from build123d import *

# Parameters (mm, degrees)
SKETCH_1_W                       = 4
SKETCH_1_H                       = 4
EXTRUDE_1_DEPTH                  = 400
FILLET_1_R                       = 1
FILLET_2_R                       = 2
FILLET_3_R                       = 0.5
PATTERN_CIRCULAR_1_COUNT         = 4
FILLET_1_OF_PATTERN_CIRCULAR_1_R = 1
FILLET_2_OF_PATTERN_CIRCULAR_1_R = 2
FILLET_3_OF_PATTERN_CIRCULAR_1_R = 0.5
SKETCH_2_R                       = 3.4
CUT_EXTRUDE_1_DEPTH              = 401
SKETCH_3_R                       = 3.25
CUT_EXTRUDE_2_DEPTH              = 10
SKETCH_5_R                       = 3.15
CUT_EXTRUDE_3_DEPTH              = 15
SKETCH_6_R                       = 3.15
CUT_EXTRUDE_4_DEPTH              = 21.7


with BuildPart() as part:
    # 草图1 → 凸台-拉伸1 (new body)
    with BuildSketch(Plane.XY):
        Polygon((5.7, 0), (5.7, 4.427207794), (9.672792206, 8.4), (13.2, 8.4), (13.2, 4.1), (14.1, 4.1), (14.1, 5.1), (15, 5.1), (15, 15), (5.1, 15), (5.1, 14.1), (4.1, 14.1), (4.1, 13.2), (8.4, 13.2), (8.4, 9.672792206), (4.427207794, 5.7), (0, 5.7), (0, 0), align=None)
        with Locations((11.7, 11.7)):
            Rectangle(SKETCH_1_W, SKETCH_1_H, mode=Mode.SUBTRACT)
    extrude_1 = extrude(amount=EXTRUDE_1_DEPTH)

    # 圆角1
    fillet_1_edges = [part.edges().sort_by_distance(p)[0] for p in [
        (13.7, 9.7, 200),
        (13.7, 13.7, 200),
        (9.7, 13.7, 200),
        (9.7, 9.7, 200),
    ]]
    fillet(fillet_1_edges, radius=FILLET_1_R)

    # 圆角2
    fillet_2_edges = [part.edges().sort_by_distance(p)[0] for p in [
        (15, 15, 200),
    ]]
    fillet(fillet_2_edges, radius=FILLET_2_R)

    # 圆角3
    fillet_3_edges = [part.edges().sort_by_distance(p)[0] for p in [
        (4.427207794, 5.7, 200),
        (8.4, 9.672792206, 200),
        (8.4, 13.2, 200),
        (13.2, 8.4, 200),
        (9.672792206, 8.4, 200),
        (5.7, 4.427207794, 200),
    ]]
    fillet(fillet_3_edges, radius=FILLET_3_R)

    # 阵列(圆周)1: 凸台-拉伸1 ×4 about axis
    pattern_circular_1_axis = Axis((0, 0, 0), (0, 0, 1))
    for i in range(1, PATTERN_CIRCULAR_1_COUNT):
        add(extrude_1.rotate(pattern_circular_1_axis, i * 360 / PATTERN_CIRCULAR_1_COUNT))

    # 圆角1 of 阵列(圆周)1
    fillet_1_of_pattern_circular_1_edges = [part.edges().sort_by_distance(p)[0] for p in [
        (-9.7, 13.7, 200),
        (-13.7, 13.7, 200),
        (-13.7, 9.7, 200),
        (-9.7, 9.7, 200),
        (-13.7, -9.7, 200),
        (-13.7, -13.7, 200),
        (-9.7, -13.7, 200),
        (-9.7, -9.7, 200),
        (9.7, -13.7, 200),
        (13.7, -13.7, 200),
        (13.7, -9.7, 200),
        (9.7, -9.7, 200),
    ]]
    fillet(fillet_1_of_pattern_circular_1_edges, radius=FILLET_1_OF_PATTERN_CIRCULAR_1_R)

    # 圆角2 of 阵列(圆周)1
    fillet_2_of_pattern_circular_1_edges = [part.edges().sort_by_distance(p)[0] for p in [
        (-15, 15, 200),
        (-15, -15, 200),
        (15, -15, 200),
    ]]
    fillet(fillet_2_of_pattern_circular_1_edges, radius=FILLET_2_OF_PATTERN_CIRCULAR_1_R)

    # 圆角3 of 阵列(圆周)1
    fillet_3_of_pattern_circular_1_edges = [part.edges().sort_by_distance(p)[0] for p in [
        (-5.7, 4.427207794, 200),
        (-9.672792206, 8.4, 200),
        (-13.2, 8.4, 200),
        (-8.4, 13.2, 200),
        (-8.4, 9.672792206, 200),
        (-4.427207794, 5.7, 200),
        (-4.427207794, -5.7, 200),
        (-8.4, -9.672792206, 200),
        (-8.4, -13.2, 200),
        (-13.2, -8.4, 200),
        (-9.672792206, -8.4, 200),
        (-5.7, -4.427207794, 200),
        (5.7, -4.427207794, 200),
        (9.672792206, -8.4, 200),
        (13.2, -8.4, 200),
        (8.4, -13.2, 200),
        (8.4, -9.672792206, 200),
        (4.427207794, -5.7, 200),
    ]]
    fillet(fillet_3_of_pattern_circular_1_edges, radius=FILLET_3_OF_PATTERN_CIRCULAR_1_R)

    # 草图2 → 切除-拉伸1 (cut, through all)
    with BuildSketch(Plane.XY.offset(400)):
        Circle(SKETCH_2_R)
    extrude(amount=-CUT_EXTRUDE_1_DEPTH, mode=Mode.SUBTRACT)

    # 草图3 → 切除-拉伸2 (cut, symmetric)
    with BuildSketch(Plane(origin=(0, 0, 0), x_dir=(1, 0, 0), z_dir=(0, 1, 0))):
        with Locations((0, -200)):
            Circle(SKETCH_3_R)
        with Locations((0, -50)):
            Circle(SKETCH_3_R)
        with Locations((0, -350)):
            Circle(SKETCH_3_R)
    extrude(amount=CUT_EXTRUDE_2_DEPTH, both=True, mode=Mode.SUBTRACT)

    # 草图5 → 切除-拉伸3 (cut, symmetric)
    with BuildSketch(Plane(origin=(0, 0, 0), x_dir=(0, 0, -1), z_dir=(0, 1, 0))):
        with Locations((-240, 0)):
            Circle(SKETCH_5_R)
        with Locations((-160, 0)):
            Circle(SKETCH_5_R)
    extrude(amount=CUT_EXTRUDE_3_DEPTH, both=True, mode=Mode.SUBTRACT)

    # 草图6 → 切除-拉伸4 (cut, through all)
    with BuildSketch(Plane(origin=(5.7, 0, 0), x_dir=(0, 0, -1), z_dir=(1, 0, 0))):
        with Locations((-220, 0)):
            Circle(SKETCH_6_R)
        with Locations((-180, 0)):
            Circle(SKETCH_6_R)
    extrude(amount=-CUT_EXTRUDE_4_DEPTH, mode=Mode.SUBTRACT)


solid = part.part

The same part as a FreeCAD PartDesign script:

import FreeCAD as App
import Part
import Sketcher
from FreeCAD import Vector
Q = App.Units.Quantity


def edges_at(feature, points):
    """Names of the edges that pass closest to the given points."""
    edges = feature.Shape.Edges
    near = lambda p: min(range(len(edges)), key=lambda i: edges[i].distToShape(Part.Vertex(*p))[0])
    return sorted({f"Edge{near(p) + 1}" for p in points})


def add_polygon(sketch, points):
    """Adds a closed chain of lines whose ends are joined by coincident constraints."""
    first, n = sketch.GeometryCount, len(points)
    for a, b in zip(points, points[1:] + points[:1]):
        sketch.addGeometry(Part.LineSegment(App.Vector(*a, 0), App.Vector(*b, 0)), False)
    for i in range(n):
        sketch.addConstraint(Sketcher.Constraint("Coincident", first + i, 2, first + (i + 1) % n, 1))

doc = App.newDocument("Part")
body = doc.addObject("PartDesign::Body", "Body")

sketch1 = doc.addObject("Sketcher::SketchObject", "Sketch")
body.addObject(sketch1)
sketch1.AttachmentSupport = (doc.XY_Plane, [""])
sketch1.MapMode = "FlatFace"
add_polygon(sketch1, [(5.7, 0), (5.7, 4.427208), (9.672792, 8.4), (13.2, 8.4), (13.2, 4.1), (14.1, 4.1), (14.1, 5.1), (15, 5.1), (15, 15), (5.1, 15), (5.1, 14.1), (4.1, 14.1), (4.1, 13.2), (8.4, 13.2), (8.4, 9.672792), (4.427208, 5.7), (0, 5.7), (0, 0)])
add_polygon(sketch1, [(13.7, 9.7), (9.7, 9.7), (9.7, 13.7), (13.7, 13.7)])
sketch1.addConstraint([
    Sketcher.Constraint("Vertical", 0),
    Sketcher.Constraint("Horizontal", 2),
    Sketcher.Constraint("Vertical", 3),
    Sketcher.Constraint("Horizontal", 4),
    Sketcher.Constraint("Vertical", 5),
    Sketcher.Constraint("Horizontal", 6),
    Sketcher.Constraint("Vertical", 7),
    Sketcher.Constraint("Horizontal", 8),
    Sketcher.Constraint("Vertical", 9),
    Sketcher.Constraint("Horizontal", 10),
    Sketcher.Constraint("Vertical", 11),
    Sketcher.Constraint("Horizontal", 12),
    Sketcher.Constraint("Vertical", 13),
    Sketcher.Constraint("Horizontal", 15),
    Sketcher.Constraint("Vertical", 16),
    Sketcher.Constraint("Horizontal", 17),
    Sketcher.Constraint("Horizontal", 18),
    Sketcher.Constraint("Vertical", 19),
    Sketcher.Constraint("Horizontal", 20),
    Sketcher.Constraint("Vertical", 21),
    Sketcher.Constraint("Coincident", 16, 2, -1, 1),
    Sketcher.Constraint("Parallel", 1, 14),
    Sketcher.Constraint("Equal", 4, 6),
    Sketcher.Constraint("Equal", 15, 0),
    Sketcher.Constraint("Equal", 12, 3),
    Sketcher.Constraint("Equal", 10, 5),
    Sketcher.Constraint("Equal", 8, 7),
    Sketcher.Constraint("Equal", 6, 9),
    Sketcher.Constraint("Equal", 9, 11),
    Sketcher.Constraint("Equal", 2, 13),
    Sketcher.Constraint("Equal", 17, 16),
    Sketcher.Constraint("Equal", 20, 19),
    Sketcher.Constraint("DistanceX", 10, 2, 10, 1, Q("1 mm")),
    Sketcher.Constraint("DistanceX", 18, 2, 18, 1, Q("4 mm")),
    Sketcher.Constraint("Angle", 1, Q("45 deg")),
    Sketcher.Constraint("DistanceX", 4, 1, 4, 2, Q("0.9 mm")),
    Sketcher.Constraint("DistanceX", 8, 2, 8, 1, Q("9.9 mm")),
    Sketcher.Constraint("DistanceX", 12, 1, 12, 2, Q("4.3 mm")),
    Sketcher.Constraint("DistanceX", 17, 1, 17, 2, Q("5.7 mm")),
    Sketcher.Constraint("DistanceX", -1, 1, 6, 2, Q("15 mm")),
    Sketcher.Constraint("DistanceX", -1, 1, 18, 2, Q("9.7 mm")),
    Sketcher.Constraint("DistanceY", -1, 1, 18, 2, Q("9.7 mm")),
    Sketcher.Constraint("DistanceX", 2, 1, 2, 2, Q("3.527208 mm")),
])
pad1 = doc.addObject("PartDesign::Pad", "Pad")
body.addObject(pad1)
pad1.Profile = sketch1
pad1.Length = 400
doc.recompute()

fillet = doc.addObject("PartDesign::Fillet", "Fillet")
body.addObject(fillet)
fillet.Base = (pad1, edges_at(pad1, [
    (13.7, 9.7, 200),
    (13.7, 13.7, 200),
    (9.7, 13.7, 200),
    (9.7, 9.7, 200),
]))
fillet.Radius = 1
doc.recompute()

fillet2 = doc.addObject("PartDesign::Fillet", "Fillet001")
body.addObject(fillet2)
fillet2.Base = (fillet, edges_at(fillet, [(15, 15, 200)]))
fillet2.Radius = 2
doc.recompute()

fillet3 = doc.addObject("PartDesign::Fillet", "Fillet002")
body.addObject(fillet3)
fillet3.Base = (fillet2, edges_at(fillet2, [
    (4.427, 5.7, 200),
    (8.4, 9.673, 200),
    (8.4, 13.2, 200),
    (13.2, 8.4, 200),
    (9.673, 8.4, 200),
    (5.7, 4.427, 200),
]))
fillet3.Radius = 0.5
doc.recompute()

polarpattern = doc.addObject("PartDesign::PolarPattern", "PolarPattern")
body.addObject(polarpattern)
polarpattern.Originals = [pad1]
polarpattern.Axis = (doc.Z_Axis, [""])
polarpattern.Angle = 360
polarpattern.Occurrences = 4
body.Tip = polarpattern
doc.recompute()

fillet4 = doc.addObject("PartDesign::Fillet", "Fillet003")
body.addObject(fillet4)
fillet4.Base = (polarpattern, edges_at(polarpattern, [
    (-9.7, 13.7, 200),
    (-13.7, 13.7, 200),
    (-13.7, 9.7, 200),
    (-9.7, 9.7, 200),
    (-13.7, -9.7, 200),
    (-13.7, -13.7, 200),
    (-9.7, -13.7, 200),
    (-9.7, -9.7, 200),
    (9.7, -13.7, 200),
    (13.7, -13.7, 200),
    (13.7, -9.7, 200),
    (9.7, -9.7, 200),
]))
fillet4.Radius = 1
doc.recompute()

fillet5 = doc.addObject("PartDesign::Fillet", "Fillet004")
body.addObject(fillet5)
fillet5.Base = (fillet4, edges_at(fillet4, [(-15, 15, 200), (-15, -15, 200), (15, -15, 200)]))
fillet5.Radius = 2
doc.recompute()

fillet6 = doc.addObject("PartDesign::Fillet", "Fillet005")
body.addObject(fillet6)
fillet6.Base = (fillet5, edges_at(fillet5, [
    (-5.7, 4.427, 200),
    (-9.673, 8.4, 200),
    (-13.2, 8.4, 200),
    (-8.4, 13.2, 200),
    (-8.4, 9.673, 200),
    (-4.427, 5.7, 200),
    (-4.427, -5.7, 200),
    (-8.4, -9.673, 200),
    (-8.4, -13.2, 200),
    (-13.2, -8.4, 200),
    (-9.673, -8.4, 200),
    (-5.7, -4.427, 200),
    (5.7, -4.427, 200),
    (9.673, -8.4, 200),
    (13.2, -8.4, 200),
    (8.4, -13.2, 200),
    (8.4, -9.673, 200),
    (4.427, -5.7, 200),
]))
fillet6.Radius = 0.5

sketch2 = doc.addObject("Sketcher::SketchObject", "Sketch001")
body.addObject(sketch2)
sketch2.AttachmentSupport = (doc.XY_Plane, [""])
sketch2.MapMode = "FlatFace"
sketch2.AttachmentOffset = App.Placement(Vector(0, 0, 400), App.Rotation())
sketch2.addGeometry(Part.Circle(Vector(0, 0, 0), Vector(0, 0, 1), 3.4), False)
sketch2.addConstraint([
    Sketcher.Constraint("Coincident", 0, 3, -1, 1),
    Sketcher.Constraint("Diameter", 0, Q("6.8 mm")),
])
pocket1 = doc.addObject("PartDesign::Pocket", "Pocket")
body.addObject(pocket1)
pocket1.Profile = sketch2
pocket1.Type = "ThroughAll"

sketch3 = doc.addObject("Sketcher::SketchObject", "Sketch002")
body.addObject(sketch3)
sketch3.AttachmentSupport = (doc.XZ_Plane, [""])
sketch3.MapMode = "FlatFace"
sketch3.addGeometry([
    Part.Circle(Vector(0, 200, 0), Vector(0, 0, 1), 3.25),
    Part.Circle(Vector(0, 50, 0), Vector(0, 0, 1), 3.25),
    Part.Circle(Vector(0, 350, 0), Vector(0, 0, 1), 3.25),
], False)
sketch3.addConstraint([
    Sketcher.Constraint("Equal", 0, 1),
    Sketcher.Constraint("Equal", 1, 2),
    Sketcher.Constraint("PointOnObject", 0, 3, -2),
    Sketcher.Constraint("PointOnObject", 1, 3, -2),
    Sketcher.Constraint("PointOnObject", 2, 3, -2),
    Sketcher.Constraint("Diameter", 0, Q("6.5 mm")),
    Sketcher.Constraint("DistanceY", -1, 1, 0, 3, Q("200 mm")),
    Sketcher.Constraint("DistanceY", -1, 1, 1, 3, Q("50 mm")),
    Sketcher.Constraint("DistanceY", -1, 1, 2, 3, Q("350 mm")),
])
pocket2 = doc.addObject("PartDesign::Pocket", "Pocket001")
body.addObject(pocket2)
pocket2.Profile = sketch3
pocket2.Length = 20
pocket2.Midplane = True

sketch4 = doc.addObject("Sketcher::SketchObject", "Sketch003")
body.addObject(sketch4)
sketch4.AttachmentSupport = (doc.XZ_Plane, [""])
sketch4.MapMode = "FlatFace"
sketch4.addGeometry([
    Part.Circle(Vector(0, 240, 0), Vector(0, 0, 1), 3.15),
    Part.Circle(Vector(0, 160, 0), Vector(0, 0, 1), 3.15),
], False)
sketch4.addConstraint([
    Sketcher.Constraint("Equal", 0, 1),
    Sketcher.Constraint("PointOnObject", 0, 3, -2),
    Sketcher.Constraint("PointOnObject", 1, 3, -2),
    Sketcher.Constraint("Diameter", 0, Q("6.3 mm")),
    Sketcher.Constraint("DistanceY", -1, 1, 0, 3, Q("240 mm")),
    Sketcher.Constraint("DistanceY", -1, 1, 1, 3, Q("160 mm")),
])
pocket3 = doc.addObject("PartDesign::Pocket", "Pocket002")
body.addObject(pocket3)
pocket3.Profile = sketch4
pocket3.Length = 30
pocket3.Midplane = True

sketch5 = doc.addObject("Sketcher::SketchObject", "Sketch004")
body.addObject(sketch5)
sketch5.AttachmentSupport = (doc.YZ_Plane, [""])
sketch5.MapMode = "FlatFace"
sketch5.AttachmentOffset = App.Placement(Vector(0, 0, 5.7), App.Rotation())
sketch5.addGeometry([
    Part.Circle(Vector(0, 220, 0), Vector(0, 0, 1), 3.15),
    Part.Circle(Vector(0, 180, 0), Vector(0, 0, 1), 3.15),
], False)
sketch5.addConstraint([
    Sketcher.Constraint("Equal", 0, 1),
    Sketcher.Constraint("PointOnObject", 0, 3, -2),
    Sketcher.Constraint("PointOnObject", 1, 3, -2),
    Sketcher.Constraint("Diameter", 0, Q("6.3 mm")),
    Sketcher.Constraint("DistanceY", -1, 1, 0, 3, Q("220 mm")),
    Sketcher.Constraint("DistanceY", -1, 1, 1, 3, Q("180 mm")),
])
pocket4 = doc.addObject("PartDesign::Pocket", "Pocket003")
body.addObject(pocket4)
pocket4.Profile = sketch5
pocket4.Type = "ThroughAll"

doc.recompute()
